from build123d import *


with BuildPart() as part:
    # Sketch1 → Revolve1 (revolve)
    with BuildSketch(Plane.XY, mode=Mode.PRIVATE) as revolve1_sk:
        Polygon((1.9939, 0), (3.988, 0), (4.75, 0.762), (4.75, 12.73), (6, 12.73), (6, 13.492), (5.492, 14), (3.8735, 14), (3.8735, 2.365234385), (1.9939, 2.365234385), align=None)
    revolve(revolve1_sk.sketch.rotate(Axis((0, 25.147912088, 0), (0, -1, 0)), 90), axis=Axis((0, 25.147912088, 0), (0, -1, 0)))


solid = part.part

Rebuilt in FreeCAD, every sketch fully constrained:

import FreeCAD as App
import Part
import Sketcher

V = App.Vector
Q = App.Units.Quantity

doc = App.newDocument("Part")
body = doc.addObject("PartDesign::Body", "Body")

sketch1 = body.newObject("Sketcher::SketchObject", "Sketch")
sketch1.AttachmentSupport = (doc.getObject("XY_Plane"), [""])
sketch1.MapMode = "FlatFace"
sketch1.addGeometry([
    Part.LineSegment(V(2, 0, 0), V(4, 0, 0)),
    Part.LineSegment(V(4, 0, 0), V(4.8, 0.8, 0)),
    Part.LineSegment(V(4.8, 0.8, 0), V(4.8, 12.7, 0)),
    Part.LineSegment(V(4.8, 12.7, 0), V(6, 12.7, 0)),
    Part.LineSegment(V(6, 12.7, 0), V(6, 13.5, 0)),
    Part.LineSegment(V(6, 13.5, 0), V(5.5, 14, 0)),
    Part.LineSegment(V(5.5, 14, 0), V(3.9, 14, 0)),
    Part.LineSegment(V(3.9, 14, 0), V(3.9, 2.4, 0)),
    Part.LineSegment(V(3.9, 2.4, 0), V(2, 2.4, 0)),
    Part.LineSegment(V(2, 2.4, 0), V(2, 0, 0)),
], False)
sketch1.addConstraint([
    Sketcher.Constraint("Coincident", 0, 2, 1, 1),
    Sketcher.Constraint("Coincident", 1, 2, 2, 1),
    Sketcher.Constraint("Coincident", 2, 2, 3, 1),
    Sketcher.Constraint("Coincident", 3, 2, 4, 1),
    Sketcher.Constraint("Coincident", 4, 2, 5, 1),
    Sketcher.Constraint("Coincident", 5, 2, 6, 1),
    Sketcher.Constraint("Coincident", 6, 2, 7, 1),
    Sketcher.Constraint("Coincident", 7, 2, 8, 1),
    Sketcher.Constraint("Coincident", 8, 2, 9, 1),
    Sketcher.Constraint("Coincident", 9, 2, 0, 1),
    Sketcher.Constraint("Horizontal", 0),
    Sketcher.Constraint("Vertical", 2),
    Sketcher.Constraint("Horizontal", 3),
    Sketcher.Constraint("Vertical", 4),
    Sketcher.Constraint("Horizontal", 6),
    Sketcher.Constraint("Vertical", 7),
    Sketcher.Constraint("Horizontal", 8),
    Sketcher.Constraint("Vertical", 9),
    Sketcher.Constraint("PointOnObject", 0, 2, -1),
    Sketcher.Constraint("Perpendicular", 1, 5),
    Sketcher.Constraint("Angle", 1, Q("45 deg")),
    Sketcher.Constraint("DistanceY", 4, 1, 4, 2, Q("0.03 in")),
    Sketcher.Constraint("DistanceX", 8, 2, 8, 1, Q("0.074 in")),
    Sketcher.Constraint("DistanceY", -1, 1, 1, 2, Q("0.03 in")),
    Sketcher.Constraint("DistanceX", 5, 2, 4, 2, Q("0.02 in")),
    Sketcher.Constraint("DistanceX", 0, 1, 0, 2, Q("1.9941 mm")),
    Sketcher.Constraint("DistanceX", 3, 1, 3, 2, Q("1.25 mm")),
    Sketcher.Constraint("DistanceY", 2, 1, 2, 2, Q("11.968 mm")),
    Sketcher.Constraint("DistanceX", -1, 1, 6, 2, Q("0.1525 in")),
    Sketcher.Constraint("DistanceY", 7, 2, 7, 1, Q("11.634766 mm")),
])
revolution = body.newObject("PartDesign::Revolution", "Revolution")
revolution.Profile = sketch1
revolution.ReferenceAxis = (sketch1, ["V_Axis"])
revolution.Angle = 360

doc.recompute()
